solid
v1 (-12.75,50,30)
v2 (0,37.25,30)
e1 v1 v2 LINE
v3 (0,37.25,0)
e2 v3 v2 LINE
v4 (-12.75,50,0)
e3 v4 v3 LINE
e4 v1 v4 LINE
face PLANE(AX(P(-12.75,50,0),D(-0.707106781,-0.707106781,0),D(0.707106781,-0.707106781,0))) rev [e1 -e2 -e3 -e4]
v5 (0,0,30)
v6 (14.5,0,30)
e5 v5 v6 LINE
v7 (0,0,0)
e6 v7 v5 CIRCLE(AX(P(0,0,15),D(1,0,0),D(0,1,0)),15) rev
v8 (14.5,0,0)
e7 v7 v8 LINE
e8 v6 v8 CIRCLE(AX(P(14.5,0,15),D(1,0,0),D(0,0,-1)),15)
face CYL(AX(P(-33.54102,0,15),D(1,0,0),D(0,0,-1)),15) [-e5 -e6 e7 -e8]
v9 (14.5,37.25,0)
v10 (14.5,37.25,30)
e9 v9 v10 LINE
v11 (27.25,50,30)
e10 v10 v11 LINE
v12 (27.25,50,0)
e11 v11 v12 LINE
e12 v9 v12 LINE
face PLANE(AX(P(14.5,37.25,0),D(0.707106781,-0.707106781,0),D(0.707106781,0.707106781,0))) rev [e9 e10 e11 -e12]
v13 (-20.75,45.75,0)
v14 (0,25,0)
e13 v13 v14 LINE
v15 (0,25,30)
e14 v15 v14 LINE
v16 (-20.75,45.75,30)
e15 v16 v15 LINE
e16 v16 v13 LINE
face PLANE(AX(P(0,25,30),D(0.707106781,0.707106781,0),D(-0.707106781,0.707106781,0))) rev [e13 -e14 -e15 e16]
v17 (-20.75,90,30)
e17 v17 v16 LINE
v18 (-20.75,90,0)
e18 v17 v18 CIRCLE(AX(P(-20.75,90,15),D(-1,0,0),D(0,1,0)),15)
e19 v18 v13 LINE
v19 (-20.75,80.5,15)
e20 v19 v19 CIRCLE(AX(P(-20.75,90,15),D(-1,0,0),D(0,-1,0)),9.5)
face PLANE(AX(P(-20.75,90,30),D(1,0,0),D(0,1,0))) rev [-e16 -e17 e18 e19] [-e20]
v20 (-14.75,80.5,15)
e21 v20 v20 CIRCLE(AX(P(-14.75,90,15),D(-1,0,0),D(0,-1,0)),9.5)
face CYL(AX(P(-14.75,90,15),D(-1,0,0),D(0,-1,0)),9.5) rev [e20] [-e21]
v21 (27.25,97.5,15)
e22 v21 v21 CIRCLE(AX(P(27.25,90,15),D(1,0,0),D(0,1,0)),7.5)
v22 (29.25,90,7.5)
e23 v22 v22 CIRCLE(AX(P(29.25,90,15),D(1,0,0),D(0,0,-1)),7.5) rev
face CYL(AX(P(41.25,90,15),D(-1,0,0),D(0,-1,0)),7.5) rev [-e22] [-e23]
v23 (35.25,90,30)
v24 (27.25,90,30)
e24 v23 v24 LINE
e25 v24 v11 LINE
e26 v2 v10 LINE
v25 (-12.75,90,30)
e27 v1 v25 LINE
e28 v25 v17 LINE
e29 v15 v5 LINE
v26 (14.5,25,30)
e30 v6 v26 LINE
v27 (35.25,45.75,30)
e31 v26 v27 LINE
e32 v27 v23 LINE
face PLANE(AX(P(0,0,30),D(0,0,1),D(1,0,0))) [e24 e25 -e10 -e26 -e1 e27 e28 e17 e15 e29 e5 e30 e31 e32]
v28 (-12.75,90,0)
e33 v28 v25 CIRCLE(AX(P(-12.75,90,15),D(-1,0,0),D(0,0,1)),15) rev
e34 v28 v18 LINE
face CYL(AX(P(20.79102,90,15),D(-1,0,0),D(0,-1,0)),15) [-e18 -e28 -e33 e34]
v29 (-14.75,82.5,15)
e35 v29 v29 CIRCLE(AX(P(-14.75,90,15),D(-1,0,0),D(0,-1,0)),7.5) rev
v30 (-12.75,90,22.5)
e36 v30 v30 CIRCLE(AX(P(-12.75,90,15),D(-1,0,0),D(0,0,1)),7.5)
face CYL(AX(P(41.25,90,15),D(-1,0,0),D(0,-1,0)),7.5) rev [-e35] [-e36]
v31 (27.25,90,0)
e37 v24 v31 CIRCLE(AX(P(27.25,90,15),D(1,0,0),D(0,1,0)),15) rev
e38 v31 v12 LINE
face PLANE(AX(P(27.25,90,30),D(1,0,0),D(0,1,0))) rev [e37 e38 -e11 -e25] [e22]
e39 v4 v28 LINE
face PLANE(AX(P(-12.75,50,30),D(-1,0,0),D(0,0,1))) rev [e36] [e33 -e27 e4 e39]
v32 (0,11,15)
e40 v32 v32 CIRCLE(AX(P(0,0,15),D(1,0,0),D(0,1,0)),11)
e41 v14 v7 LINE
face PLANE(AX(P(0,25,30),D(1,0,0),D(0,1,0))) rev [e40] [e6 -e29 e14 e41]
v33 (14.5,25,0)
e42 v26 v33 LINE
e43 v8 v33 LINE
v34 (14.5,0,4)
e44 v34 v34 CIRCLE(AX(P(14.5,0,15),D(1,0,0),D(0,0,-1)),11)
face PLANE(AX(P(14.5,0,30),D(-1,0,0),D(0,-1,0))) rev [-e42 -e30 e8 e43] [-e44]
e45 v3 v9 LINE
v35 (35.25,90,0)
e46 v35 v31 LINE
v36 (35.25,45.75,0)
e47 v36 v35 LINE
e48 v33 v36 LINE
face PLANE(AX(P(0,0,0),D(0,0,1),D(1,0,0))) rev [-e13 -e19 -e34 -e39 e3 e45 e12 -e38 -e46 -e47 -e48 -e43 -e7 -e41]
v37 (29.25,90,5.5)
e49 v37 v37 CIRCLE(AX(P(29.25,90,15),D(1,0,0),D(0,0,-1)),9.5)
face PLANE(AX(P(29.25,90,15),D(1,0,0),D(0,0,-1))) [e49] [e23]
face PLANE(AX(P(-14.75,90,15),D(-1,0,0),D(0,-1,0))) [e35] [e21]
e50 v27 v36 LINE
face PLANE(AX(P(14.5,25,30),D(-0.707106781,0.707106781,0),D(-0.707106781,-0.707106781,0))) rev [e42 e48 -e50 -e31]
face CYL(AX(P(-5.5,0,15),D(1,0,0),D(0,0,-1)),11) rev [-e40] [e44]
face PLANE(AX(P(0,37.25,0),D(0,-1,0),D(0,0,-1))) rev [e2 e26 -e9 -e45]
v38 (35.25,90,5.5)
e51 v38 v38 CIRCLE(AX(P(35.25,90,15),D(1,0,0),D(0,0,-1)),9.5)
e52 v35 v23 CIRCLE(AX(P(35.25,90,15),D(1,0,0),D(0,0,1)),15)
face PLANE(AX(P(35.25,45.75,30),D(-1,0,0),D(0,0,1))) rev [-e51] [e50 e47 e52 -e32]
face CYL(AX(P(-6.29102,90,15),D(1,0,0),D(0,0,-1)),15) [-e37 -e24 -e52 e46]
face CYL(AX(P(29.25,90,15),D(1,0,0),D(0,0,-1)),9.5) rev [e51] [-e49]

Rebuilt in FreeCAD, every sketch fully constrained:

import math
import FreeCAD as App
import Part
import Sketcher
from FreeCAD import Vector
Q = App.Units.Quantity

doc = App.newDocument("Part")
body = doc.addObject("PartDesign::Body", "Body")

# Sketch on XY plane
sketch1 = body.newObject("Sketcher::SketchObject", "Sketch")
sketch1.AttachmentSupport = (doc.getObject("XY_Plane"), [""])
sketch1.MapMode = "FlatFace"
sketch1.addGeometry(Part.LineSegment(Vector(0, 0, 0), Vector(14, 0, 0)), False)
sketch1.addGeometry(Part.LineSegment(Vector(14, 0, 0), Vector(14, 25, 0)), False)
sketch1.addGeometry(Part.LineSegment(Vector(14, 25, 0), Vector(35, 46, 0)), False)
sketch1.addGeometry(Part.LineSegment(Vector(35, 46, 0), Vector(35, 90, 0)), False)
sketch1.addGeometry(Part.LineSegment(Vector(35, 90, 0), Vector(27, 90, 0)), False)
sketch1.addGeometry(Part.LineSegment(Vector(27, 90, 0), Vector(27, 50, 0)), False)
sketch1.addGeometry(Part.LineSegment(Vector(27, 50, 0), Vector(-13, 50, 0)), False)
sketch1.addGeometry(Part.LineSegment(Vector(-13, 50, 0), Vector(-13, 90, 0)), False)
sketch1.addGeometry(Part.LineSegment(Vector(-13, 90, 0), Vector(-21, 90, 0)), False)
sketch1.addGeometry(Part.LineSegment(Vector(-21, 90, 0), Vector(-21, 46, 0)), False)
sketch1.addGeometry(Part.LineSegment(Vector(-21, 46, 0), Vector(0, 25, 0)), False)
sketch1.addGeometry(Part.LineSegment(Vector(0, 25, 0), Vector(0, 0, 0)), False)
sketch1.addConstraint(Sketcher.Constraint("Coincident", 0, 2, 1, 1))
sketch1.addConstraint(Sketcher.Constraint("Coincident", 1, 2, 2, 1))
sketch1.addConstraint(Sketcher.Constraint("Coincident", 2, 2, 3, 1))
sketch1.addConstraint(Sketcher.Constraint("Coincident", 3, 2, 4, 1))
sketch1.addConstraint(Sketcher.Constraint("Coincident", 4, 2, 5, 1))
sketch1.addConstraint(Sketcher.Constraint("Coincident", 5, 2, 6, 1))
sketch1.addConstraint(Sketcher.Constraint("Coincident", 6, 2, 7, 1))
sketch1.addConstraint(Sketcher.Constraint("Coincident", 7, 2, 8, 1))
sketch1.addConstraint(Sketcher.Constraint("Coincident", 8, 2, 9, 1))
sketch1.addConstraint(Sketcher.Constraint("Coincident", 9, 2, 10, 1))
sketch1.addConstraint(Sketcher.Constraint("Coincident", 10, 2, 11, 1))
sketch1.addConstraint(Sketcher.Constraint("Coincident", 11, 2, 0, 1))
sketch1.addConstraint(Sketcher.Constraint("Horizontal", 0))
sketch1.addConstraint(Sketcher.Constraint("Vertical", 1))
sketch1.addConstraint(Sketcher.Constraint("Vertical", 3))
sketch1.addConstraint(Sketcher.Constraint("Horizontal", 4))
sketch1.addConstraint(Sketcher.Constraint("Vertical", 5))
sketch1.addConstraint(Sketcher.Constraint("Horizontal", 6))
sketch1.addConstraint(Sketcher.Constraint("Vertical", 7))
sketch1.addConstraint(Sketcher.Constraint("Horizontal", 8))
sketch1.addConstraint(Sketcher.Constraint("Vertical", 9))
sketch1.addConstraint(Sketcher.Constraint("Vertical", 11))
sketch1.addConstraint(Sketcher.Constraint("Coincident", 11, 2, -1, 1))
sketch1.addConstraint(Sketcher.Constraint("Perpendicular", 2, 10))
sketch1.addConstraint(Sketcher.Constraint("Horizontal", 4, 2, 7, 2))
sketch1.addConstraint(Sketcher.Constraint("Horizontal", 2, 2, 9, 2))
sketch1.addConstraint(Sketcher.Constraint("Horizontal", 1, 2, 10, 2))
sketch1.addConstraint(Sketcher.Constraint("Equal", 4, 8))
sketch1.addConstraint(Sketcher.Constraint("Equal", 6, 5))
sketch1.addConstraint(Sketcher.Constraint("Equal", 2, 10))
sketch1.addConstraint(Sketcher.Constraint("DistanceX", 4, 2, 4, 1, Q("8 mm")))
sketch1.addConstraint(Sketcher.Constraint("DistanceX", 6, 2, 6, 1, Q("40 mm")))
sketch1.addConstraint(Sketcher.Constraint("DistanceY", 1, 1, 1, 2, Q("25 mm")))
sketch1.addConstraint(Sketcher.Constraint("DistanceX", 0, 1, 0, 2, Q("14.5 mm")))
sketch1.addConstraint(Sketcher.Constraint("DistanceY", -1, 1, 3, 2, Q("90 mm")))
pad1 = body.newObject("PartDesign::Pad", "Pad")
pad1.Profile = sketch1
pad1.Length = 30

# Sketch on XY plane
sketch2 = body.newObject("Sketcher::SketchObject", "Sketch001")
sketch2.AttachmentSupport = (doc.getObject("XY_Plane"), [""])
sketch2.MapMode = "FlatFace"
sketch2.AttachmentOffset = App.Placement(Vector(0, 0, 30), App.Rotation())
sketch2.addGeometry(Part.LineSegment(Vector(-13, 50, 0), Vector(0, 37, 0)), False)
sketch2.addGeometry(Part.LineSegment(Vector(0, 37, 0), Vector(14, 37, 0)), False)
sketch2.addGeometry(Part.LineSegment(Vector(14, 37, 0), Vector(27, 50, 0)), False)
sketch2.addGeometry(Part.LineSegment(Vector(27, 50, 0), Vector(-13, 50, 0)), False)
sketch2.addConstraint(Sketcher.Constraint("Coincident", 0, 2, 1, 1))
sketch2.addConstraint(Sketcher.Constraint("Coincident", 1, 2, 2, 1))
sketch2.addConstraint(Sketcher.Constraint("Coincident", 2, 2, 3, 1))
sketch2.addConstraint(Sketcher.Constraint("Coincident", 3, 2, 0, 1))
sketch2.addConstraint(Sketcher.Constraint("Horizontal", 1))
sketch2.addConstraint(Sketcher.Constraint("Horizontal", 3))
sketch2.addConstraint(Sketcher.Constraint("PointOnObject", 0, 2, -2))
sketch2.addConstraint(Sketcher.Constraint("Perpendicular", 0, 2))
sketch2.addConstraint(Sketcher.Constraint("Equal", 0, 2))
sketch2.addConstraint(Sketcher.Constraint("DistanceX", 3, 2, 3, 1, Q("40 mm")))
sketch2.addConstraint(Sketcher.Constraint("DistanceX", 1, 1, 1, 2, Q("14.5 mm")))
sketch2.addConstraint(Sketcher.Constraint("DistanceY", -1, 1, 2, 2, Q("50 mm")))
pocket1 = body.newObject("PartDesign::Pocket", "Pocket")
pocket1.Profile = sketch2
pocket1.Type = "ThroughAll"

# Sketch on YZ plane
sketch3 = body.newObject("Sketcher::SketchObject", "Sketch002")
sketch3.AttachmentSupport = (doc.getObject("YZ_Plane"), [""])
sketch3.MapMode = "FlatFace"
sketch3.AttachmentOffset = App.Placement(Vector(0, 0, 14.5), App.Rotation())
sketch3.addGeometry(Part.LineSegment(Vector(0, 0, 0), Vector(0, 30, 0)), False)
sketch3.addGeometry(Part.ArcOfCircle(Part.Circle(Vector(0, 15, 0), Vector(0, 0, 1), 15), math.radians(90), math.radians(270)), False)
sketch3.addConstraint(Sketcher.Constraint("Coincident", 0, 1, 1, 2))
sketch3.addConstraint(Sketcher.Constraint("Coincident", 1, 1, 0, 2))
sketch3.addConstraint(Sketcher.Constraint("Vertical", 0))
sketch3.addConstraint(Sketcher.Constraint("Coincident", 0, 1, -1, 1))
sketch3.addConstraint(Sketcher.Constraint("PointOnObject", 1, 3, -2))
sketch3.addConstraint(Sketcher.Constraint("Radius", 1, Q("15 mm")))
pad2 = body.newObject("PartDesign::Pad", "Pad001")
pad2.Profile = sketch3
pad2.Length = 14.5
pad2.Reversed = True

# Sketch on YZ plane
sketch4 = body.newObject("Sketcher::SketchObject", "Sketch003")
sketch4.AttachmentSupport = (doc.getObject("YZ_Plane"), [""])
sketch4.MapMode = "FlatFace"
sketch4.AttachmentOffset = App.Placement(Vector(0, 0, 14.5), App.Rotation())
sketch4.addGeometry(Part.Circle(Vector(0, 15, 0), Vector(0, 0, 1), 11), False)
sketch4.addConstraint(Sketcher.Constraint("PointOnObject", 0, 3, -2))
sketch4.addConstraint(Sketcher.Constraint("Diameter", 0, Q("22 mm")))
sketch4.addConstraint(Sketcher.Constraint("DistanceY", -1, 1, 0, 3, Q("15 mm")))
pocket2 = body.newObject("PartDesign::Pocket", "Pocket001")
pocket2.Profile = sketch4
pocket2.Length = 20

# Sketch on YZ plane
sketch5 = body.newObject("Sketcher::SketchObject", "Sketch004")
sketch5.AttachmentSupport = (doc.getObject("YZ_Plane"), [""])
sketch5.MapMode = "FlatFace"
sketch5.AttachmentOffset = App.Placement(Vector(0, 0, 35.25), App.Rotation())
sketch5.addGeometry(Part.LineSegment(Vector(90, 30, 0), Vector(90, 0, 0)), False)
sketch5.addGeometry(Part.ArcOfCircle(Part.Circle(Vector(90, 15, 0), Vector(0, 0, 1), 15), math.radians(-90), math.radians(90)), False)
sketch5.addConstraint(Sketcher.Constraint("Coincident", 0, 1, 1, 2))
sketch5.addConstraint(Sketcher.Constraint("Coincident", 1, 1, 0, 2))
sketch5.addConstraint(Sketcher.Constraint("Vertical", 0))
sketch5.addConstraint(Sketcher.Constraint("PointOnObject", 1, 1, -1))
sketch5.addConstraint(Sketcher.Constraint("Vertical", 1, 3, 0, 1))
sketch5.addConstraint(Sketcher.Constraint("Radius", 1, Q("15 mm")))
sketch5.addConstraint(Sketcher.Constraint("DistanceX", -1, 1, 1, 3, Q("90 mm")))
pad3 = body.newObject("PartDesign::Pad", "Pad002")
pad3.Profile = sketch5
pad3.Length = 8
pad3.Reversed = True

# Sketch on YZ plane
sketch6 = body.newObject("Sketcher::SketchObject", "Sketch005")
sketch6.AttachmentSupport = (doc.getObject("YZ_Plane"), [""])
sketch6.MapMode = "FlatFace"
sketch6.AttachmentOffset = App.Placement(Vector(0, 0, -12.75), App.Rotation())
sketch6.addGeometry(Part.LineSegment(Vector(90, 0, 0), Vector(90, 30, 0)), False)
sketch6.addGeometry(Part.ArcOfCircle(Part.Circle(Vector(90, 15, 0), Vector(0, 0, 1), 15), math.radians(-90), math.radians(90)), False)
sketch6.addConstraint(Sketcher.Constraint("Coincident", 0, 1, 1, 1))
sketch6.addConstraint(Sketcher.Constraint("Coincident", 1, 2, 0, 2))
sketch6.addConstraint(Sketcher.Constraint("Vertical", 0))
sketch6.addConstraint(Sketcher.Constraint("PointOnObject", 0, 1, -1))
sketch6.addConstraint(Sketcher.Constraint("Vertical", 1, 3, 0, 1))
sketch6.addConstraint(Sketcher.Constraint("Radius", 1, Q("15 mm")))
sketch6.addConstraint(Sketcher.Constraint("DistanceX", -1, 1, 1, 3, Q("90 mm")))
pad4 = body.newObject("PartDesign::Pad", "Pad003")
pad4.Profile = sketch6
pad4.Length = 8
pad4.Reversed = True

# Sketch on YZ plane
sketch7 = body.newObject("Sketcher::SketchObject", "Sketch006")
sketch7.AttachmentSupport = (doc.getObject("YZ_Plane"), [""])
sketch7.MapMode = "FlatFace"
sketch7.AttachmentOffset = App.Placement(Vector(0, 0, -20.75), App.Rotation())
sketch7.addGeometry(Part.Circle(Vector(90, 15, 0), Vector(0, 0, 1), 8), False)
sketch7.addConstraint(Sketcher.Constraint("Diameter", 0, Q("15 mm")))
sketch7.addConstraint(Sketcher.Constraint("DistanceX", -1, 1, 0, 3, Q("90 mm")))
sketch7.addConstraint(Sketcher.Constraint("DistanceY", -1, 1, 0, 3, Q("15 mm")))
pocket3 = body.newObject("PartDesign::Pocket", "Pocket002")
pocket3.Profile = sketch7
pocket3.Length = 62
pocket3.Reversed = True

# Sketch on YZ plane
sketch8 = body.newObject("Sketcher::SketchObject", "Sketch007")
sketch8.AttachmentSupport = (doc.getObject("YZ_Plane"), [""])
sketch8.MapMode = "FlatFace"
sketch8.AttachmentOffset = App.Placement(Vector(0, 0, -20.75), App.Rotation())
sketch8.addGeometry(Part.Circle(Vector(90, 15, 0), Vector(0, 0, 1), 10), False)
sketch8.addConstraint(Sketcher.Constraint("Diameter", 0, Q("19 mm")))
sketch8.addConstraint(Sketcher.Constraint("DistanceX", -1, 1, 0, 3, Q("90 mm")))
sketch8.addConstraint(Sketcher.Constraint("DistanceY", -1, 1, 0, 3, Q("15 mm")))
pocket4 = body.newObject("PartDesign::Pocket", "Pocket003")
pocket4.Profile = sketch8
pocket4.Length = 6
pocket4.Reversed = True

# Sketch on YZ plane
sketch9 = body.newObject("Sketcher::SketchObject", "Sketch008")
sketch9.AttachmentSupport = (doc.getObject("YZ_Plane"), [""])
sketch9.MapMode = "FlatFace"
sketch9.AttachmentOffset = App.Placement(Vector(0, 0, 29.25), App.Rotation())
sketch9.addGeometry(Part.Circle(Vector(90, 15, 0), Vector(0, 0, 1), 10), False)
sketch9.addConstraint(Sketcher.Constraint("Diameter", 0, Q("19 mm")))
sketch9.addConstraint(Sketcher.Constraint("DistanceX", -1, 1, 0, 3, Q("90 mm")))
sketch9.addConstraint(Sketcher.Constraint("DistanceY", -1, 1, 0, 3, Q("15 mm")))
pocket5 = body.newObject("PartDesign::Pocket", "Pocket004")
pocket5.Profile = sketch9
pocket5.Length = 6
pocket5.Reversed = True

doc.recompute()
